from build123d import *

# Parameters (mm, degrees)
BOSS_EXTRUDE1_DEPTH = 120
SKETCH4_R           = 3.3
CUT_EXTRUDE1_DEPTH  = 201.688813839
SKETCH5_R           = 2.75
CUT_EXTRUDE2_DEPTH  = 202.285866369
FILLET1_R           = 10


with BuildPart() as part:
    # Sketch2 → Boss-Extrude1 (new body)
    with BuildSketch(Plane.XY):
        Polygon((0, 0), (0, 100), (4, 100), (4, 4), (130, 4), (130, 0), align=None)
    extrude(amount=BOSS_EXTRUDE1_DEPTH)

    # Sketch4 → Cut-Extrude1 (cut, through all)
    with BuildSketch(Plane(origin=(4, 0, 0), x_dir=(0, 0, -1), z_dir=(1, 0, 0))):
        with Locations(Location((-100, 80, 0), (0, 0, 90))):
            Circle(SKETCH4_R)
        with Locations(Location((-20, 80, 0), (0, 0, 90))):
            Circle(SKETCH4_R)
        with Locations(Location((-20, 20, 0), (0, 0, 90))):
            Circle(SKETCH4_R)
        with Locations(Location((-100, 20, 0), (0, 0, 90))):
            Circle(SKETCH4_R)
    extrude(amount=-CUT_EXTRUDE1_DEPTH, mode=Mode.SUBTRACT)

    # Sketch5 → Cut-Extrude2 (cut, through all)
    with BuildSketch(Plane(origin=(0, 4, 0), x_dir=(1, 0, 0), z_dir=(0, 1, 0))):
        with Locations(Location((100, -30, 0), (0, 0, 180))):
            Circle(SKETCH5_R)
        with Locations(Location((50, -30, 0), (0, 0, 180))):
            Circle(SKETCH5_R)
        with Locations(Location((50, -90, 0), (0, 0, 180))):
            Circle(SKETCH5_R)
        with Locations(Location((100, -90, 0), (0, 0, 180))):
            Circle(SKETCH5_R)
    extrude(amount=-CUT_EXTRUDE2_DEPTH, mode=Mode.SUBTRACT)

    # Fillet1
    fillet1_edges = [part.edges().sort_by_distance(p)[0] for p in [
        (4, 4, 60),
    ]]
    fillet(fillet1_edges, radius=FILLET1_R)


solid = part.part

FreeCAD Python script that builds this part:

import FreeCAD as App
import Part
import Sketcher


def edges_at(feature, points):
    """Names of the edges that pass closest to the given points."""
    edges = feature.Shape.Edges
    near = lambda p: min(range(len(edges)), key=lambda i: edges[i].distToShape(Part.Vertex(*p))[0])
    return sorted({f"Edge{near(p) + 1}" for p in points})

doc = App.newDocument("Part")
body = doc.addObject("PartDesign::Body", "Body")

sketch1 = body.newObject("Sketcher::SketchObject", "Sketch")
sketch1.AttachmentSupport = (doc.getObject("XY_Plane"), [""])
sketch1.MapMode = "FlatFace"
sketch1.addGeometry([
    Part.LineSegment(App.Vector(0, 100, 0), App.Vector(0, 0, 0)),
    Part.LineSegment(App.Vector(0, 0, 0), App.Vector(130, 0, 0)),
    Part.LineSegment(App.Vector(130, 0, 0), App.Vector(130, 4, 0)),
    Part.LineSegment(App.Vector(130, 4, 0), App.Vector(4, 4, 0)),
    Part.LineSegment(App.Vector(4, 4, 0), App.Vector(4, 100, 0)),
    Part.LineSegment(App.Vector(4, 100, 0), App.Vector(0, 100, 0)),
], False)
sketch1.addConstraint([
    Sketcher.Constraint("Coincident", 0, 2, 1, 1),
    Sketcher.Constraint("Coincident", 1, 2, 2, 1),
    Sketcher.Constraint("Coincident", 2, 2, 3, 1),
    Sketcher.Constraint("Coincident", 3, 2, 4, 1),
    Sketcher.Constraint("Coincident", 4, 2, 5, 1),
    Sketcher.Constraint("Coincident", 5, 2, 0, 1),
    Sketcher.Constraint("Vertical", 0),
    Sketcher.Constraint("Horizontal", 1),
    Sketcher.Constraint("Vertical", 2),
    Sketcher.Constraint("Horizontal", 3),
    Sketcher.Constraint("Vertical", 4),
    Sketcher.Constraint("Horizontal", 5),
    Sketcher.Constraint("Coincident", 0, 2, -1, 1),
    Sketcher.Constraint("Equal", 5, 2),
    Sketcher.Constraint("DistanceX", 1, 1, 1, 2, 130.0),
    Sketcher.Constraint("DistanceX", 3, 2, 3, 1, 126.0),
    Sketcher.Constraint("DistanceY", 0, 2, 0, 1, 100.0),
])
pad1 = body.newObject("PartDesign::Pad", "Pad")
pad1.Profile = sketch1
pad1.Length = 120

sketch2 = body.newObject("Sketcher::SketchObject", "Sketch001")
sketch2.AttachmentSupport = (doc.getObject("YZ_Plane"), [""])
sketch2.MapMode = "FlatFace"
sketch2.AttachmentOffset = App.Placement(App.Vector(0, 0, 4), App.Rotation())
sketch2.addGeometry([
    Part.Circle(App.Vector(80, 100, 0), App.Vector(0, 0, 1), 3.3),
    Part.Circle(App.Vector(80, 20, 0), App.Vector(0, 0, 1), 3.3),
    Part.Circle(App.Vector(20, 20, 0), App.Vector(0, 0, 1), 3.3),
    Part.Circle(App.Vector(20, 100, 0), App.Vector(0, 0, 1), 3.3),
], False)
sketch2.addConstraint([
    Sketcher.Constraint("Equal", 0, 1),
    Sketcher.Constraint("Equal", 1, 2),
    Sketcher.Constraint("Equal", 2, 3),
    Sketcher.Constraint("Horizontal", 1, 3, 2, 3),
    Sketcher.Constraint("Horizontal", 0, 3, 3, 3),
    Sketcher.Constraint("Vertical", 0, 3, 1, 3),
    Sketcher.Constraint("Vertical", 2, 3, 3, 3),
    Sketcher.Constraint("Diameter", 0, 6.6),
    Sketcher.Constraint("DistanceX", -1, 1, 0, 3, 80.0),
    Sketcher.Constraint("DistanceY", -1, 1, 0, 3, 100.0),
    Sketcher.Constraint("DistanceY", -1, 1, 1, 3, 20.0),
    Sketcher.Constraint("DistanceX", -1, 1, 2, 3, 20.0),
])
pocket1 = body.newObject("PartDesign::Pocket", "Pocket")
pocket1.Profile = sketch2
pocket1.Type = "ThroughAll"

sketch3 = body.newObject("Sketcher::SketchObject", "Sketch002")
sketch3.AttachmentSupport = (doc.getObject("XZ_Plane"), [""])
sketch3.MapMode = "FlatFace"
sketch3.AttachmentOffset = App.Placement(App.Vector(0, 0, -4), App.Rotation())
sketch3.addGeometry([
    Part.Circle(App.Vector(100, 30, 0), App.Vector(0, 0, 1), 2.8),
    Part.Circle(App.Vector(50, 30, 0), App.Vector(0, 0, 1), 2.8),
    Part.Circle(App.Vector(50, 90, 0), App.Vector(0, 0, 1), 2.8),
    Part.Circle(App.Vector(100, 90, 0), App.Vector(0, 0, 1), 2.8),
], False)
sketch3.addConstraint([
    Sketcher.Constraint("Equal", 0, 1),
    Sketcher.Constraint("Equal", 1, 2),
    Sketcher.Constraint("Equal", 2, 3),
    Sketcher.Constraint("Horizontal", 0, 3, 1, 3),
    Sketcher.Constraint("Horizontal", 2, 3, 3, 3),
    Sketcher.Constraint("Vertical", 1, 3, 2, 3),
    Sketcher.Constraint("Vertical", 0, 3, 3, 3),
    Sketcher.Constraint("Diameter", 0, 5.5),
    Sketcher.Constraint("DistanceX", -1, 1, 0, 3, 100.0),
    Sketcher.Constraint("DistanceY", -1, 1, 0, 3, 30.0),
    Sketcher.Constraint("DistanceX", -1, 1, 1, 3, 50.0),
    Sketcher.Constraint("DistanceY", -1, 1, 2, 3, 90.0),
])
pocket2 = body.newObject("PartDesign::Pocket", "Pocket001")
pocket2.Profile = sketch3
pocket2.Type = "ThroughAll"
pocket2.Reversed = True
doc.recompute()

fillet = body.newObject("PartDesign::Fillet", "Fillet")
fillet.Base = (pocket2, edges_at(pocket2, [(4, 4, 60)]))
fillet.Radius = 10

doc.recompute()
